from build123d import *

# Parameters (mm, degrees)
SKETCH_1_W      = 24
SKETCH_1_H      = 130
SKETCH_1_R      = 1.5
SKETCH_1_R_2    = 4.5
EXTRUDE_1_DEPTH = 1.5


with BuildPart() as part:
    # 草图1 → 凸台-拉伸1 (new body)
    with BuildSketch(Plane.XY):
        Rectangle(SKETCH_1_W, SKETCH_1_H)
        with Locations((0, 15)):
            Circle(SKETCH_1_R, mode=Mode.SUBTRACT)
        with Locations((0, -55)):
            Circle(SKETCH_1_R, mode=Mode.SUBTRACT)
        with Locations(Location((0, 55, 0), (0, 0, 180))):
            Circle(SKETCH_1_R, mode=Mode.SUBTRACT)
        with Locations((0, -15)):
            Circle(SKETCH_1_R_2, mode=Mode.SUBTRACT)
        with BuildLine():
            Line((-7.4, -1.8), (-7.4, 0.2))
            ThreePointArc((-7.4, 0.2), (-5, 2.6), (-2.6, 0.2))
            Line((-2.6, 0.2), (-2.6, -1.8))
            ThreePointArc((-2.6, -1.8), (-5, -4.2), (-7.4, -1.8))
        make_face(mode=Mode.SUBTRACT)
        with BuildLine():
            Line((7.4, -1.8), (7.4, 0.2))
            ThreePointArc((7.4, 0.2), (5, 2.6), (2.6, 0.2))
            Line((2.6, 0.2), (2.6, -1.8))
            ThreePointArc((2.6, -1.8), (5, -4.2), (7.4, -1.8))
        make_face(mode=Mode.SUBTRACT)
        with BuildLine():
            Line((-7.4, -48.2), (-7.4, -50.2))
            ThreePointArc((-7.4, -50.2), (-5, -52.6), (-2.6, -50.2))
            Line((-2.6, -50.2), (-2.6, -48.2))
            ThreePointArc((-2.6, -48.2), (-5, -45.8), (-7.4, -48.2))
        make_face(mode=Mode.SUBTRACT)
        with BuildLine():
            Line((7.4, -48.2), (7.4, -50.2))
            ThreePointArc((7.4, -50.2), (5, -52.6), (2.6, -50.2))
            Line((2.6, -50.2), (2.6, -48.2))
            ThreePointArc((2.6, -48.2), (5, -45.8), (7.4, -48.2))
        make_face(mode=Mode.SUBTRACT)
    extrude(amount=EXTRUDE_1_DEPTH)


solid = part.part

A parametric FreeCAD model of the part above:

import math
import FreeCAD as App
import Part
import Sketcher

V = App.Vector
Q = App.Units.Quantity

doc = App.newDocument("Part")
body = doc.addObject("PartDesign::Body", "Body")

sketch1 = body.newObject("Sketcher::SketchObject", "Sketch")
sketch1.AttachmentSupport = (doc.getObject("XY_Plane"), [""])
sketch1.MapMode = "FlatFace"
sketch1.addGeometry([
    Part.LineSegment(V(-12, 65, 0), V(-12, -65, 0)),
    Part.LineSegment(V(-12, -65, 0), V(12, -65, 0)),
    Part.LineSegment(V(12, -65, 0), V(12, 65, 0)),
    Part.LineSegment(V(12, 65, 0), V(-12, 65, 0)),
    Part.LineSegment(V(-7.4, -50.2, 0), V(-7.4, -48.2, 0)),
    Part.ArcOfCircle(Part.Circle(V(-5, -48.2, 0), V(0, 0, 1), 2.4), math.radians(0), math.radians(180)),
    Part.LineSegment(V(-2.6, -48.2, 0), V(-2.6, -50.2, 0)),
    Part.ArcOfCircle(Part.Circle(V(-5, -50.2, 0), V(0, 0, 1), 2.4), math.radians(180), math.radians(360)),
    Part.Circle(V(0, -55, 0), V(0, 0, 1), 1.5),
    Part.ArcOfCircle(Part.Circle(V(-5, -1.8, 0), V(0, 0, 1), 2.4), math.radians(180), math.radians(360)),
    Part.LineSegment(V(-7.4, -1.8, 0), V(-7.4, 0.2, 0)),
    Part.ArcOfCircle(Part.Circle(V(-5, 0.2, 0), V(0, 0, 1), 2.4), math.radians(0), math.radians(180)),
    Part.LineSegment(V(-2.6, 0.2, 0), V(-2.6, -1.8, 0)),
    Part.Circle(V(0, -15, 0), V(0, 0, 1), 4.5),
    Part.ArcOfCircle(Part.Circle(V(5, -48.2, 0), V(0, 0, 1), 2.4), math.radians(0), math.radians(180)),
    Part.LineSegment(V(7.4, -48.2, 0), V(7.4, -50.2, 0)),
    Part.ArcOfCircle(Part.Circle(V(5, -50.2, 0), V(0, 0, 1), 2.4), math.radians(180), math.radians(360)),
    Part.LineSegment(V(2.6, -50.2, 0), V(2.6, -48.2, 0)),
    Part.LineSegment(V(7.4, 0.2, 0), V(7.4, -1.8, 0)),
    Part.ArcOfCircle(Part.Circle(V(5, -1.8, 0), V(0, 0, 1), 2.4), math.radians(180), math.radians(360)),
    Part.LineSegment(V(2.6, -1.8, 0), V(2.6, 0.2, 0)),
    Part.ArcOfCircle(Part.Circle(V(5, 0.2, 0), V(0, 0, 1), 2.4), math.radians(0), math.radians(180)),
    Part.Circle(V(0, 15, 0), V(0, 0, 1), 1.5),
    Part.Circle(V(0, 55, 0), V(0, 0, 1), 1.5),
], False)
sketch1.addConstraint([
    Sketcher.Constraint("Coincident", 0, 2, 1, 1),
    Sketcher.Constraint("Coincident", 1, 2, 2, 1),
    Sketcher.Constraint("Coincident", 2, 2, 3, 1),
    Sketcher.Constraint("Coincident", 3, 2, 0, 1),
    Sketcher.Constraint("Tangent", 4, 2, 5, 2),
    Sketcher.Constraint("Tangent", 5, 1, 6, 1),
    Sketcher.Constraint("Tangent", 6, 2, 7, 2),
    Sketcher.Constraint("Tangent", 7, 1, 4, 1),
    Sketcher.Constraint("Tangent", 9, 1, 10, 1),
    Sketcher.Constraint("Tangent", 10, 2, 11, 2),
    Sketcher.Constraint("Tangent", 11, 1, 12, 1),
    Sketcher.Constraint("Tangent", 12, 2, 9, 2),
    Sketcher.Constraint("Tangent", 14, 1, 15, 1),
    Sketcher.Constraint("Tangent", 15, 2, 16, 2),
    Sketcher.Constraint("Tangent", 16, 1, 17, 1),
    Sketcher.Constraint("Tangent", 17, 2, 14, 2),
    Sketcher.Constraint("Tangent", 18, 2, 19, 2),
    Sketcher.Constraint("Tangent", 19, 1, 20, 1),
    Sketcher.Constraint("Tangent", 20, 2, 21, 2),
    Sketcher.Constraint("Tangent", 21, 1, 18, 1),
    Sketcher.Constraint("Vertical", 0),
    Sketcher.Constraint("Horizontal", 1),
    Sketcher.Constraint("Vertical", 2),
    Sketcher.Constraint("Horizontal", 3),
    Sketcher.Constraint("Vertical", 4),
    Sketcher.Constraint("Vertical", 6),
    Sketcher.Constraint("Vertical", 10),
    Sketcher.Constraint("Vertical", 12),
    Sketcher.Constraint("Vertical", 15),
    Sketcher.Constraint("Vertical", 17),
    Sketcher.Constraint("Vertical", 18),
    Sketcher.Constraint("Vertical", 20),
    Sketcher.Constraint("Equal", 7, 9),
    Sketcher.Constraint("Equal", 11, 14),
    Sketcher.Constraint("Equal", 16, 19),
    Sketcher.Constraint("Equal", 8, 22),
    Sketcher.Constraint("Equal", 22, 23),
    Sketcher.Constraint("Symmetric", 13, 3, 22, 3, -1, 1),
    Sketcher.Constraint("Symmetric", 8, 3, 23, 3, -1, 1),
    Sketcher.Constraint("Symmetric", 0, 2, 2, 2, -1, 1),
    Sketcher.Constraint("Symmetric", 5, 3, 14, 3, -2),
    Sketcher.Constraint("Symmetric", 9, 3, 19, 3, -2),
    Sketcher.Constraint("PointOnObject", 8, 3, -2),
    Sketcher.Constraint("PointOnObject", 13, 3, -2),
    Sketcher.Constraint("Horizontal", 7, 3, 16, 3),
    Sketcher.Constraint("Horizontal", 11, 3, 21, 3),
    Sketcher.Constraint("Vertical", 7, 3, 9, 3),
    Sketcher.Constraint("Equal", 6, 10),
    Sketcher.Constraint("Diameter", 8, Q("3 mm")),
    Sketcher.Constraint("Diameter", 13, Q("9 mm")),
    Sketcher.Constraint("Radius", 5, Q("2.4 mm")),
    Sketcher.Constraint("DistanceX", 1, 1, 1, 2, Q("24 mm")),
    Sketcher.Constraint("DistanceY", 0, 2, 0, 1, Q("130 mm")),
    Sketcher.Constraint("DistanceY", 4, 1, 4, 2, Q("2 mm")),
    Sketcher.Constraint("DistanceX", 5, 3, -1, 1, Q("5 mm")),
    Sketcher.Constraint("DistanceY", 8, 3, -1, 1, Q("55 mm")),
    Sketcher.Constraint("DistanceY", 13, 3, -1, 1, Q("15 mm")),
    Sketcher.Constraint("DistanceY", 5, 3, -1, 1, Q("48.2 mm")),
    Sketcher.Constraint("DistanceY", 9, 3, -1, 1, Q("1.8 mm")),
])
pad1 = body.newObject("PartDesign::Pad", "Pad")
pad1.Profile = sketch1
pad1.Length = 1.5

doc.recompute()
